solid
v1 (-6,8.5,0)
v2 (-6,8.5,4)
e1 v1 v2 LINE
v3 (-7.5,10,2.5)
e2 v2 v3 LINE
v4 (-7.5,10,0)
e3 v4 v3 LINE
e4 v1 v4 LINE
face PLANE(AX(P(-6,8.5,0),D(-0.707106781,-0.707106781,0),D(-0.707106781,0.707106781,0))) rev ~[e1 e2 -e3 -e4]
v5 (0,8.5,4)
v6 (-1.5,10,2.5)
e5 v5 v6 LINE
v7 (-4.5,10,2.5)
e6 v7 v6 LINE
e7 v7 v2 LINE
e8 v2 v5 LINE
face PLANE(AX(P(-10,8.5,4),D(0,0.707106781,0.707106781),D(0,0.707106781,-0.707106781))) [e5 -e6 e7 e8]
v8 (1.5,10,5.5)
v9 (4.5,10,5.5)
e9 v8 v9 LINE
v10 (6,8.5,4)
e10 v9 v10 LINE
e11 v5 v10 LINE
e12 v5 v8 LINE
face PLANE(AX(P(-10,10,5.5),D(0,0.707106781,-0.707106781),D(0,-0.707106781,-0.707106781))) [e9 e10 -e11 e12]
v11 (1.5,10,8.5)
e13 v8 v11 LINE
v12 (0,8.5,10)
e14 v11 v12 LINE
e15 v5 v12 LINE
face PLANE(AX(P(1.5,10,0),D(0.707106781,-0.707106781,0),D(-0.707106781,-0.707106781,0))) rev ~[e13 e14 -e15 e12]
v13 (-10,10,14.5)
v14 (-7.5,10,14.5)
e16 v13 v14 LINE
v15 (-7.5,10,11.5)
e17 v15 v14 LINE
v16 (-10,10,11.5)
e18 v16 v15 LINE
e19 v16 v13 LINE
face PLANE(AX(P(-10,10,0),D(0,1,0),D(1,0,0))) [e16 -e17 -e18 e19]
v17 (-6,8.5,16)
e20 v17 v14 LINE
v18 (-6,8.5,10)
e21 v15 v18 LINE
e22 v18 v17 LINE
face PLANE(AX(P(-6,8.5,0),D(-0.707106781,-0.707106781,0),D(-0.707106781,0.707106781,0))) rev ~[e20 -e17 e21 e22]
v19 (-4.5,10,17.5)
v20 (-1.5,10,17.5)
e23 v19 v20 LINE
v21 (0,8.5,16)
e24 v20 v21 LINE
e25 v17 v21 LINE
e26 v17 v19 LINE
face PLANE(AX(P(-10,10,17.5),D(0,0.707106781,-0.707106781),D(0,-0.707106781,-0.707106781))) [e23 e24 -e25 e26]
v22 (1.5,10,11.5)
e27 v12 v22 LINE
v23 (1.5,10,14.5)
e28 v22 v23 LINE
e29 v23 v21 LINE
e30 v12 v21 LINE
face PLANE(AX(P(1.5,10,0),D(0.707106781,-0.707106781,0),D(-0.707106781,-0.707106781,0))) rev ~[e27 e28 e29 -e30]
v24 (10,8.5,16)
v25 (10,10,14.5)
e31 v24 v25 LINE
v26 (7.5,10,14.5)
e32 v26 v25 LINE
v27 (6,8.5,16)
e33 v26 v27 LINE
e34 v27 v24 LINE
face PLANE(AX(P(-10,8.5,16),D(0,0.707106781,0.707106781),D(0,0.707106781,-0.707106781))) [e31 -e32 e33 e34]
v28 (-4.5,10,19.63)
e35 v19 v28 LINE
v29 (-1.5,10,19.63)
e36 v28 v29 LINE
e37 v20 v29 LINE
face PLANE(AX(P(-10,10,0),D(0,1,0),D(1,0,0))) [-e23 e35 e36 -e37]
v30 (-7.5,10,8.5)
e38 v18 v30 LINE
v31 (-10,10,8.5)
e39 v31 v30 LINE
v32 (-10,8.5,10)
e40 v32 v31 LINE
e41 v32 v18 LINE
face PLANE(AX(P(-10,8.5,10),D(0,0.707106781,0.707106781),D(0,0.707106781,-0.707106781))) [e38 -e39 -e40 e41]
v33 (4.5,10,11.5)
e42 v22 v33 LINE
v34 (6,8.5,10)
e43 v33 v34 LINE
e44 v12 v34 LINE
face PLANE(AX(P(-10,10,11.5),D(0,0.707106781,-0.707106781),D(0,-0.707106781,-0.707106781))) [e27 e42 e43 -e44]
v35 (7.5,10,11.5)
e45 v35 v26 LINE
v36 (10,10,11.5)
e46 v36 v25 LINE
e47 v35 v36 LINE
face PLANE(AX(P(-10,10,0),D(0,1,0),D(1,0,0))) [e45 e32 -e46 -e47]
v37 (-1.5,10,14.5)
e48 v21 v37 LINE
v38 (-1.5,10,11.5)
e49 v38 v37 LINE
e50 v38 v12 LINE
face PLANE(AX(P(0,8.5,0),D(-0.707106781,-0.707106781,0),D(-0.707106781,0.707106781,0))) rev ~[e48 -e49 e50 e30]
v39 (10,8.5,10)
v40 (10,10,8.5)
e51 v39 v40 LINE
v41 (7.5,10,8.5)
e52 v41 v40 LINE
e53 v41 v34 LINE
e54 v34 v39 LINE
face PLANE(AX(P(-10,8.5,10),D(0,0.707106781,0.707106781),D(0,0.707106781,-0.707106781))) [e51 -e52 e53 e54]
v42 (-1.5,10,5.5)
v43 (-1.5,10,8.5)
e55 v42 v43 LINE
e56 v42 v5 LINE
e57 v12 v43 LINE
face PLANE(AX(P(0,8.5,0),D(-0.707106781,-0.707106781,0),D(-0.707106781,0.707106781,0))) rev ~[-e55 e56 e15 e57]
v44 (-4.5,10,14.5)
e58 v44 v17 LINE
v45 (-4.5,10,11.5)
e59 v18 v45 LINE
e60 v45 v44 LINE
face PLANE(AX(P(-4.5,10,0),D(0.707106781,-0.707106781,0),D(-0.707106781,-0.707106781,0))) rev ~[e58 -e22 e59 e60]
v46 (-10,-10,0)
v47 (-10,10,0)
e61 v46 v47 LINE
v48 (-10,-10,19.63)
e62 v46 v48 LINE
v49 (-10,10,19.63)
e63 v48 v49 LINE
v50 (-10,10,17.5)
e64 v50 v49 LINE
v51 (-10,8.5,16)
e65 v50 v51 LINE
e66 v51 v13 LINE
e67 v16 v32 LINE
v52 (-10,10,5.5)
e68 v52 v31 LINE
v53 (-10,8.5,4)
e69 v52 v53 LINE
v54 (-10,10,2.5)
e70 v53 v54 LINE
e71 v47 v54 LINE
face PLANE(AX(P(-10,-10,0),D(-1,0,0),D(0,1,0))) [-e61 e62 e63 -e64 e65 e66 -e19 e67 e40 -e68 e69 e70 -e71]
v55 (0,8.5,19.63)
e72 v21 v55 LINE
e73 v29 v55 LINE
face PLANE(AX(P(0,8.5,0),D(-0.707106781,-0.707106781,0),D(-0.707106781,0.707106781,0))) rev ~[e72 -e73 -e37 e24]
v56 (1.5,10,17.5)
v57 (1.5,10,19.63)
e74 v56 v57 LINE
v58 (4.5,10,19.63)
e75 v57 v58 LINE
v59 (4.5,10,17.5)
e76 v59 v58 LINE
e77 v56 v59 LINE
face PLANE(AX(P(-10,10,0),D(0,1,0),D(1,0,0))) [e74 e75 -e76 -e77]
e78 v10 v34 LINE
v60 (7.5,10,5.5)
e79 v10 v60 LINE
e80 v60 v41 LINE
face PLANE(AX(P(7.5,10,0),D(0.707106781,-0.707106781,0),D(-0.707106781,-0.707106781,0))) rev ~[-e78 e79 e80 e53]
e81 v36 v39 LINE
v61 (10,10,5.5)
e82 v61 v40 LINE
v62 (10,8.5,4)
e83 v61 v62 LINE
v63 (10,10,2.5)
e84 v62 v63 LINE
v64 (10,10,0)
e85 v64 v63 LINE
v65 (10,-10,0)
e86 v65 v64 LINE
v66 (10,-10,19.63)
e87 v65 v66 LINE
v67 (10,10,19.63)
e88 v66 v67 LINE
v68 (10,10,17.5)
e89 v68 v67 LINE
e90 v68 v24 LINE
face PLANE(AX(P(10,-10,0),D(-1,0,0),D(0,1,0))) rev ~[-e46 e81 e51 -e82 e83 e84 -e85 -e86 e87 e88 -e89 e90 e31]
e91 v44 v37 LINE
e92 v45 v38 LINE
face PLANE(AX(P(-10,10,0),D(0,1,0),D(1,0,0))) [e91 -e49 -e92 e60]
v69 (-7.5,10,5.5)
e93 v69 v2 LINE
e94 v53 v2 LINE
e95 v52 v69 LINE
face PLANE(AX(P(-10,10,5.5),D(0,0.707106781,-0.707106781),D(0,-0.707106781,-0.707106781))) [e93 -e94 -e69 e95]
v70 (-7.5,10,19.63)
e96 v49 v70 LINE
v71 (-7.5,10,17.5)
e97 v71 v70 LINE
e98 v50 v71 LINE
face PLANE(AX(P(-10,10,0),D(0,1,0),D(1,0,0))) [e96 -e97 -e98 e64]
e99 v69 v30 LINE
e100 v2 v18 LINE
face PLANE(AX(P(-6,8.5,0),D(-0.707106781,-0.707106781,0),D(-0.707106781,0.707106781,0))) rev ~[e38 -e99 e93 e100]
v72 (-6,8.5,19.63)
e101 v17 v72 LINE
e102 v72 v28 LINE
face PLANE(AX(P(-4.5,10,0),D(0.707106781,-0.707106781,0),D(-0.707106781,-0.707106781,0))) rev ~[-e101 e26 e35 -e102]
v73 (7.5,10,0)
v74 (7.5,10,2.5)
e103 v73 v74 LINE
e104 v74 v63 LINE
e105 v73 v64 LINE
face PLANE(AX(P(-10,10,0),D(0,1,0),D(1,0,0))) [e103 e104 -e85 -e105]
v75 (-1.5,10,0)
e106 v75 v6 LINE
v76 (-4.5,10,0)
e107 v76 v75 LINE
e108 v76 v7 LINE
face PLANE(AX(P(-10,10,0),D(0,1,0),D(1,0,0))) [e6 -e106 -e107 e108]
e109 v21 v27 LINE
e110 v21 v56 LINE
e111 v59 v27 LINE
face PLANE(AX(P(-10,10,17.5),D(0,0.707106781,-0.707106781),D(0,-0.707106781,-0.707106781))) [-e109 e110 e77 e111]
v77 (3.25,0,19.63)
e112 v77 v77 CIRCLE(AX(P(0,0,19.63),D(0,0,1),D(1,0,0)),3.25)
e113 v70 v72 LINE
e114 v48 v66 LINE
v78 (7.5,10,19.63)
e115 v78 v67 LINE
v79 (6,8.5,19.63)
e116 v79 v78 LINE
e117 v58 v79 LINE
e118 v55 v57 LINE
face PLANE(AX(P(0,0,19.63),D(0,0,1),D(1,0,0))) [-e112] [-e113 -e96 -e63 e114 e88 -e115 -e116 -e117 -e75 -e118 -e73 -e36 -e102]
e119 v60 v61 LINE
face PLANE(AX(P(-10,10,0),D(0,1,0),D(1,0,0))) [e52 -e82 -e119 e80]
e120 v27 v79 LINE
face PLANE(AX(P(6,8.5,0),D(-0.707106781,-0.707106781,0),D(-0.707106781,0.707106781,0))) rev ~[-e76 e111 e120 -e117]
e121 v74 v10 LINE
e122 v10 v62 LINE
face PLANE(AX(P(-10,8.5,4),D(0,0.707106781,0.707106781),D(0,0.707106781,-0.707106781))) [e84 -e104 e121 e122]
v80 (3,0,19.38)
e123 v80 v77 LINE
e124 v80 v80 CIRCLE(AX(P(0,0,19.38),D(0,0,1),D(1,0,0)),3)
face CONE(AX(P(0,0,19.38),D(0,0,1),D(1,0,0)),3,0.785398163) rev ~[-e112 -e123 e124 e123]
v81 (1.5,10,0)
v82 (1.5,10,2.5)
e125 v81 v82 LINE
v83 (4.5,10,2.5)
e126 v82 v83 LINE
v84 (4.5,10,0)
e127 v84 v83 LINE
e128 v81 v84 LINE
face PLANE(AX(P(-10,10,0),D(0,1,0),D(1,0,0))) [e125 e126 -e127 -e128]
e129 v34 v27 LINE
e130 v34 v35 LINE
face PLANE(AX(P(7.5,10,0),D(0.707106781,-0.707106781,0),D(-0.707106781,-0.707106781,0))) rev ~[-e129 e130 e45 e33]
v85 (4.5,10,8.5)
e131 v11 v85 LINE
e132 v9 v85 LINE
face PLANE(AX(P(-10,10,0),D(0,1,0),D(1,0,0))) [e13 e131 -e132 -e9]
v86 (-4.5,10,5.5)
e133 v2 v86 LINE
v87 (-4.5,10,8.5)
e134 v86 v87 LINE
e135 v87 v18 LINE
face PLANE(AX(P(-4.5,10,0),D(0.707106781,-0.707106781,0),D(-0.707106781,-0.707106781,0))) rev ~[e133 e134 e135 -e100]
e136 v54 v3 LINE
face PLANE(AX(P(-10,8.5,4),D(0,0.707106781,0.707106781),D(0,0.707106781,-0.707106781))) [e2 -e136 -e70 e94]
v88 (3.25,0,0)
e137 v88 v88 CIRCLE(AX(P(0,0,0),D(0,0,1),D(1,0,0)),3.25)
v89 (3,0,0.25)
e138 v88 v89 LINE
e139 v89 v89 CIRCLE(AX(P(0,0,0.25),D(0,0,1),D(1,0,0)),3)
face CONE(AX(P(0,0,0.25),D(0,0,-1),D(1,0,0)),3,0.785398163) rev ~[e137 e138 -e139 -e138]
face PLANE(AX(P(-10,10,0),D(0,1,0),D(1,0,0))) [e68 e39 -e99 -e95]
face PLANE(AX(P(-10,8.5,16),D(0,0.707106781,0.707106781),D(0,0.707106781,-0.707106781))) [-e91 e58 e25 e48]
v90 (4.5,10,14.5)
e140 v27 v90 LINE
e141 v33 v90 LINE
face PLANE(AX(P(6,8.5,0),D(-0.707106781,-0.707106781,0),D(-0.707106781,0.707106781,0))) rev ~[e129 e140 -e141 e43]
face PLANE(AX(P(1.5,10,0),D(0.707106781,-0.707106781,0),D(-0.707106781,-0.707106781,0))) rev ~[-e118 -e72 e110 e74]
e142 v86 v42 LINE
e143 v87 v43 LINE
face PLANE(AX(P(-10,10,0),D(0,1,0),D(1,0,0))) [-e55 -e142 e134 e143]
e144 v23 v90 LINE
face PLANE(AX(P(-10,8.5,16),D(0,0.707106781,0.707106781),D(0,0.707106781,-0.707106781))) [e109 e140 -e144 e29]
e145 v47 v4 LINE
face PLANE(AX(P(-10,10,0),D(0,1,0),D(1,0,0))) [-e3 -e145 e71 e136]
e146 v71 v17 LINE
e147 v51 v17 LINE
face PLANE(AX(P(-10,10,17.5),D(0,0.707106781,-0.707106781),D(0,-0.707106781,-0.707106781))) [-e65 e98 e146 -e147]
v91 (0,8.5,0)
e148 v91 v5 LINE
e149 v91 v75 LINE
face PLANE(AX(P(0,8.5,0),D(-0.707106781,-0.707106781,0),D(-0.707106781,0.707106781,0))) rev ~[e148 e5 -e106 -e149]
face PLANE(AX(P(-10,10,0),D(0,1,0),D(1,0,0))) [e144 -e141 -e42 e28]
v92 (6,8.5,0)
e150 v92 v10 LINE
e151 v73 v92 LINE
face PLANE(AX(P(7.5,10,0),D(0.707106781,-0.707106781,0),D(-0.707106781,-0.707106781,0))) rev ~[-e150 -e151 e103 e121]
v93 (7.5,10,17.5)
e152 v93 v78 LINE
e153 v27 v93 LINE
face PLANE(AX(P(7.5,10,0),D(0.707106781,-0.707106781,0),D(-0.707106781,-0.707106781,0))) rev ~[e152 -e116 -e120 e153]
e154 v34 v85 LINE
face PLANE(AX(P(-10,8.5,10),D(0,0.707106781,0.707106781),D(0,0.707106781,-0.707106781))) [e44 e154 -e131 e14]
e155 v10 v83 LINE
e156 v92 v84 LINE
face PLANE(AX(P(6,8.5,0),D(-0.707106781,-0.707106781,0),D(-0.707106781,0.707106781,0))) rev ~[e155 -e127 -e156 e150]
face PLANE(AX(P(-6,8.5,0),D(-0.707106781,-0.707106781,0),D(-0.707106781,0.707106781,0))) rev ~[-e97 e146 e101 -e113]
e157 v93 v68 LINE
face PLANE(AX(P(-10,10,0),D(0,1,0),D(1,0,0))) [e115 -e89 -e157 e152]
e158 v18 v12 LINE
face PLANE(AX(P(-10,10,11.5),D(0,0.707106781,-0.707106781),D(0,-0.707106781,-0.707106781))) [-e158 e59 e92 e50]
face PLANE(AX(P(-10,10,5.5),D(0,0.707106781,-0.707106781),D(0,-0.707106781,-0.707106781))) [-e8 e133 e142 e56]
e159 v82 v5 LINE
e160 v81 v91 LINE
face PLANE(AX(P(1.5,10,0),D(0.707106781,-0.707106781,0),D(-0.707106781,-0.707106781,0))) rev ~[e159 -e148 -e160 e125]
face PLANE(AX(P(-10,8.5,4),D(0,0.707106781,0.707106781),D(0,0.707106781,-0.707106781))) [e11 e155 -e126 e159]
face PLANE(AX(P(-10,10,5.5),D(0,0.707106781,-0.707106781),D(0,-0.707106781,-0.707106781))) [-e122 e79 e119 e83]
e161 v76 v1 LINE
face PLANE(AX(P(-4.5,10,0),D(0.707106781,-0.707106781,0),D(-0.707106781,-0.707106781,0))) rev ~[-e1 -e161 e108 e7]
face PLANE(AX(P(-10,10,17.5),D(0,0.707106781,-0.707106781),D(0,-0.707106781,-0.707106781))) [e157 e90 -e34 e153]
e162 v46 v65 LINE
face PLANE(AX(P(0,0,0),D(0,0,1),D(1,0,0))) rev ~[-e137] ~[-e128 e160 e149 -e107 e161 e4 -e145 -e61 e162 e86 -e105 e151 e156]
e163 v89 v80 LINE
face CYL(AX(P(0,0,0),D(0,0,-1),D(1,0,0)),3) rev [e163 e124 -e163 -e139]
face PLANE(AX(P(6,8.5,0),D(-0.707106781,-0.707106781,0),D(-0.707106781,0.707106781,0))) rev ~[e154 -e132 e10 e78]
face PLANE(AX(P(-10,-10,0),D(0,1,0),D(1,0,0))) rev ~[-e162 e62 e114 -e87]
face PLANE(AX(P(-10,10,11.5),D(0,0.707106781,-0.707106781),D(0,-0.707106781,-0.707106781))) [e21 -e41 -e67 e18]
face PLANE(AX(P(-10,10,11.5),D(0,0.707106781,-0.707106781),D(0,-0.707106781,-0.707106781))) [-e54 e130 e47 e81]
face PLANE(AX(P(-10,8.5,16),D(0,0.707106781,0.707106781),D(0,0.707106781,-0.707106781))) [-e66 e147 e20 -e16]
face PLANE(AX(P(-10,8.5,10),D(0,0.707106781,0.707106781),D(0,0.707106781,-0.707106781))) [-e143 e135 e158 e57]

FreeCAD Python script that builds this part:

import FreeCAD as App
import Part
import Sketcher


def edges_at(feature, points):
    """Names of the edges that pass closest to the given points."""
    edges = feature.Shape.Edges
    near = lambda p: min(range(len(edges)), key=lambda i: edges[i].distToShape(Part.Vertex(*p))[0])
    return sorted({f"Edge{near(p) + 1}" for p in points})


def add_polygon(sketch, points):
    """Adds a closed chain of lines whose ends are joined by coincident constraints."""
    first, n = sketch.GeometryCount, len(points)
    for a, b in zip(points, points[1:] + points[:1]):
        sketch.addGeometry(Part.LineSegment(App.Vector(*a, 0), App.Vector(*b, 0)), False)
    for i in range(n):
        sketch.addConstraint(Sketcher.Constraint("Coincident", first + i, 2, first + (i + 1) % n, 1))

doc = App.newDocument("Part")
body = doc.addObject("PartDesign::Body", "Body")

# Sketch on XY plane
sketch1 = body.newObject("Sketcher::SketchObject", "Sketch")
sketch1.AttachmentSupport = (doc.getObject("XY_Plane"), [""])
sketch1.MapMode = "FlatFace"
add_polygon(sketch1, [(-10, 10), (-10, -10), (10, -10), (10, 10)])  # lines 0-3
sketch1.addGeometry(Part.Circle(App.Vector(0, 0, 0), App.Vector(0, 0, 1), 3), False)  # 4
sketch1.addConstraint(Sketcher.Constraint("Vertical", 0))
sketch1.addConstraint(Sketcher.Constraint("Horizontal", 1))
sketch1.addConstraint(Sketcher.Constraint("Vertical", 2))
sketch1.addConstraint(Sketcher.Constraint("Horizontal", 3))
sketch1.addConstraint(Sketcher.Constraint("Coincident", 4, 3, -1, 1))
sketch1.addConstraint(Sketcher.Constraint("Symmetric", 0, 2, 2, 2, -1, 1))
sketch1.addConstraint(Sketcher.Constraint("Equal", 3, 0))
sketch1.addConstraint(Sketcher.Constraint("Diameter", 4, 6.0))
sketch1.addConstraint(Sketcher.Constraint("DistanceX", 1, 1, 1, 2, 20.0))
pad1 = body.newObject("PartDesign::Pad", "Pad")
pad1.Profile = sketch1
pad1.Length = 19.63

# Sketch on XY plane
sketch2 = body.newObject("Sketcher::SketchObject", "Sketch001")
sketch2.AttachmentSupport = (doc.getObject("XY_Plane"), [""])
sketch2.MapMode = "FlatFace"
add_polygon(sketch2, [(6, 8.5), (4.5, 10), (7.5, 10)])  # lines 0-2
add_polygon(sketch2, [(1.5, 10), (0, 8.5), (-1.5, 10)])  # lines 3-5
add_polygon(sketch2, [(-7.5, 10), (-4.5, 10), (-6, 8.5)])  # lines 6-8
sketch2.addConstraint(Sketcher.Constraint("Horizontal", 1))
sketch2.addConstraint(Sketcher.Constraint("Horizontal", 5))
sketch2.addConstraint(Sketcher.Constraint("Horizontal", 6))
sketch2.addConstraint(Sketcher.Constraint("Symmetric", 0, 2, 6, 2, -2))
sketch2.addConstraint(Sketcher.Constraint("Symmetric", 2, 2, 7, 2, -2))
sketch2.addConstraint(Sketcher.Constraint("PointOnObject", 3, 2, -2))
sketch2.addConstraint(Sketcher.Constraint("Perpendicular", 0, 2))
sketch2.addConstraint(Sketcher.Constraint("Parallel", 2, 3))
sketch2.addConstraint(Sketcher.Constraint("Perpendicular", 3, 4))
sketch2.addConstraint(Sketcher.Constraint("Perpendicular", 4, 7))
sketch2.addConstraint(Sketcher.Constraint("Perpendicular", 7, 8))
sketch2.addConstraint(Sketcher.Constraint("Horizontal", 2, 2, 3, 2))
sketch2.addConstraint(Sketcher.Constraint("Horizontal", 1, 2, 4, 2))
sketch2.addConstraint(Sketcher.Constraint("DistanceX", 1, 1, 1, 2, 3.0))
sketch2.addConstraint(Sketcher.Constraint("DistanceY", -1, 1, 0, 2, 10.0))
sketch2.addConstraint(Sketcher.Constraint("DistanceX", -1, 1, 2, 2, 6.0))
pocket1 = body.newObject("PartDesign::Pocket", "Pocket")
pocket1.Profile = sketch2
pocket1.Length = 26
pocket1.Reversed = True

# Sketch on YZ plane
sketch3 = body.newObject("Sketcher::SketchObject", "Sketch002")
sketch3.AttachmentSupport = (doc.getObject("YZ_Plane"), [""])
sketch3.MapMode = "FlatFace"
sketch3.AttachmentOffset = App.Placement(App.Vector(0, 0, -10), App.Rotation())
add_polygon(sketch3, [(10, 2.5), (10, 5.5), (8.5, 4)])  # lines 0-2
add_polygon(sketch3, [(10, 11.5), (8.5, 10), (10, 8.5)])  # lines 3-5
add_polygon(sketch3, [(8.5, 16), (10, 14.5), (10, 17.5)])  # lines 6-8
sketch3.addConstraint(Sketcher.Constraint("Vertical", 0))
sketch3.addConstraint(Sketcher.Constraint("Vertical", 5))
sketch3.addConstraint(Sketcher.Constraint("Vertical", 7))
sketch3.addConstraint(Sketcher.Constraint("Perpendicular", 1, 2))
sketch3.addConstraint(Sketcher.Constraint("Perpendicular", 2, 3))
sketch3.addConstraint(Sketcher.Constraint("Perpendicular", 3, 4))
sketch3.addConstraint(Sketcher.Constraint("Parallel", 4, 6))
sketch3.addConstraint(Sketcher.Constraint("Perpendicular", 6, 8))
sketch3.addConstraint(Sketcher.Constraint("Vertical", 1, 2, 3, 2))
sketch3.addConstraint(Sketcher.Constraint("Vertical", 2, 2, 4, 2))
sketch3.addConstraint(Sketcher.Constraint("Vertical", 5, 2, 6, 2))
sketch3.addConstraint(Sketcher.Constraint("Vertical", 3, 2, 8, 2))
sketch3.addConstraint(Sketcher.Constraint("Equal", 1, 2))
sketch3.addConstraint(Sketcher.Constraint("DistanceY", 0, 1, 0, 2, 3.0))
sketch3.addConstraint(Sketcher.Constraint("DistanceX", -1, 1, 0, 2, 10.0))
sketch3.addConstraint(Sketcher.Constraint("DistanceY", -1, 1, 1, 2, 4.0))
sketch3.addConstraint(Sketcher.Constraint("DistanceY", -1, 1, 3, 2, 10.0))
sketch3.addConstraint(Sketcher.Constraint("DistanceY", -1, 1, 8, 2, 16.0))
pocket2 = body.newObject("PartDesign::Pocket", "Pocket001")
pocket2.Profile = sketch3
pocket2.Length = 26
pocket2.Reversed = True
doc.recompute()

chamfer = body.newObject("PartDesign::Chamfer", "Chamfer")
chamfer.Base = (pocket2, edges_at(pocket2, [(-3, 0, 0)]))
chamfer.Size = 0.25
doc.recompute()

chamfer2 = body.newObject("PartDesign::Chamfer", "Chamfer001")
chamfer2.Base = (chamfer, edges_at(chamfer, [(-3, 0, 19.63)]))
chamfer2.Size = 0.25

doc.recompute()
